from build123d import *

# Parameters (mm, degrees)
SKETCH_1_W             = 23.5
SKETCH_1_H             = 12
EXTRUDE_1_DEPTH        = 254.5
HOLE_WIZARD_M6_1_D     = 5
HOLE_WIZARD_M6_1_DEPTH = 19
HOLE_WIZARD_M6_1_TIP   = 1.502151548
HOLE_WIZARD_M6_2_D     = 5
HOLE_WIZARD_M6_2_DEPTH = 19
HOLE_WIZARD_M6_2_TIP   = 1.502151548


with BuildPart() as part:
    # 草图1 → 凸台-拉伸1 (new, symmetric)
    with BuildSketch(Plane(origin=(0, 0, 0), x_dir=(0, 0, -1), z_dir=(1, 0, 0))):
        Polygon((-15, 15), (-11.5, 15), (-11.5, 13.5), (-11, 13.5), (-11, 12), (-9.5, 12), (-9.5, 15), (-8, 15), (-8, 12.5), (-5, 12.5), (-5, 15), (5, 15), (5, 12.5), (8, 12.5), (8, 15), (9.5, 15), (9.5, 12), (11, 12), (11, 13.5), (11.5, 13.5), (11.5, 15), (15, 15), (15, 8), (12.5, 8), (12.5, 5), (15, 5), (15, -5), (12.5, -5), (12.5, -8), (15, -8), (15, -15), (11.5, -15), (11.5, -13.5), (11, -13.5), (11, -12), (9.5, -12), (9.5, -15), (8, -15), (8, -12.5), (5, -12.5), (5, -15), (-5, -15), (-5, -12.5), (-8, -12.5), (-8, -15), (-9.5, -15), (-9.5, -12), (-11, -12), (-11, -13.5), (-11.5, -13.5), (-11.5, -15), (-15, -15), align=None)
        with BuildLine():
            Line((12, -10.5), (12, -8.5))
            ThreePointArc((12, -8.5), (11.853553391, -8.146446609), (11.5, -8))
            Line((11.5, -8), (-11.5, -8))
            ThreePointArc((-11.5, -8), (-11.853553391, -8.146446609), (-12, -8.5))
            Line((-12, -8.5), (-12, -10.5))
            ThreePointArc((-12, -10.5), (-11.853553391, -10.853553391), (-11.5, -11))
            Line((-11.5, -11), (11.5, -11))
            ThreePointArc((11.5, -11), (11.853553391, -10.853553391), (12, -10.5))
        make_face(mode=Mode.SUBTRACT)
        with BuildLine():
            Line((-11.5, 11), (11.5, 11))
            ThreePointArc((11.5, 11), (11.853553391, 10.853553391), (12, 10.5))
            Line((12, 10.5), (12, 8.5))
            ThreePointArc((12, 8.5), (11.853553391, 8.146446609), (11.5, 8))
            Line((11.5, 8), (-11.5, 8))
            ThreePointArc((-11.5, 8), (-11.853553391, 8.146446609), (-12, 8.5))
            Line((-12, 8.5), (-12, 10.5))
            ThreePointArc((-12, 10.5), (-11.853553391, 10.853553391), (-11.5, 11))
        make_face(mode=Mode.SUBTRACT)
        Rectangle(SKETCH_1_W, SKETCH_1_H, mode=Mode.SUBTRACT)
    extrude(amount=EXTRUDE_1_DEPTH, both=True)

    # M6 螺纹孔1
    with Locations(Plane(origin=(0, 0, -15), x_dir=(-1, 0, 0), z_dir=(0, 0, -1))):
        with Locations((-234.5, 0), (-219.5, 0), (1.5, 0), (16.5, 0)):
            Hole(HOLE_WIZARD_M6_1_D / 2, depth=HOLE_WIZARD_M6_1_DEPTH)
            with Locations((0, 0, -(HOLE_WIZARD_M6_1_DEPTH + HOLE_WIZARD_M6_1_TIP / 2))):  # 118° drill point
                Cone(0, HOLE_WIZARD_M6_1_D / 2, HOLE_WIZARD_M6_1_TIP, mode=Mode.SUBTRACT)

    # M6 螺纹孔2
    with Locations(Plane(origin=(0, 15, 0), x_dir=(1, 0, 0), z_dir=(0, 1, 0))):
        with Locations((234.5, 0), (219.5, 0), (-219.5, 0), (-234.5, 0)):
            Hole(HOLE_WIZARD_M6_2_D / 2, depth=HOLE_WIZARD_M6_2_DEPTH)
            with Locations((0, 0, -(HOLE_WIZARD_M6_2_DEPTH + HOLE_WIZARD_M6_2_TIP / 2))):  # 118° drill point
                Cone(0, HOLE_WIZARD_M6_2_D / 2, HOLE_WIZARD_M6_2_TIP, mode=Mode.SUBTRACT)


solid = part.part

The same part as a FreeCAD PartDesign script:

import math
import FreeCAD as App
import Part
import Sketcher
from FreeCAD import Vector

doc = App.newDocument("Part")
body = doc.addObject("PartDesign::Body", "Body")

sketch1 = body.newObject("Sketcher::SketchObject", "Sketch")
sketch1.AttachmentSupport = (doc.getObject("YZ_Plane"), [""])
sketch1.MapMode = "FlatFace"
sketch1.addGeometry([
    Part.LineSegment(Vector(15, 11.5, 0), Vector(15, 15, 0)),
    Part.LineSegment(Vector(15, 15, 0), Vector(-15, 15, 0)),
    Part.LineSegment(Vector(-15, 15, 0), Vector(-15, 11.5, 0)),
    Part.LineSegment(Vector(-15, 11.5, 0), Vector(-13.5, 11.5, 0)),
    Part.LineSegment(Vector(-13.5, 11.5, 0), Vector(-13.5, 11, 0)),
    Part.LineSegment(Vector(-13.5, 11, 0), Vector(-12, 11, 0)),
    Part.LineSegment(Vector(-12, 11, 0), Vector(-12, 9.5, 0)),
    Part.LineSegment(Vector(-12, 9.5, 0), Vector(-15, 9.5, 0)),
    Part.LineSegment(Vector(-15, 9.5, 0), Vector(-15, 8, 0)),
    Part.LineSegment(Vector(-15, 8, 0), Vector(-12.5, 8, 0)),
    Part.LineSegment(Vector(-12.5, 8, 0), Vector(-12.5, 5, 0)),
    Part.LineSegment(Vector(-12.5, 5, 0), Vector(-15, 5, 0)),
    Part.LineSegment(Vector(-15, 5, 0), Vector(-15, -5, 0)),
    Part.LineSegment(Vector(-15, -5, 0), Vector(-12.5, -5, 0)),
    Part.LineSegment(Vector(-12.5, -5, 0), Vector(-12.5, -8, 0)),
    Part.LineSegment(Vector(-12.5, -8, 0), Vector(-15, -8, 0)),
    Part.LineSegment(Vector(-15, -8, 0), Vector(-15, -9.5, 0)),
    Part.LineSegment(Vector(-15, -9.5, 0), Vector(-12, -9.5, 0)),
    Part.LineSegment(Vector(-12, -9.5, 0), Vector(-12, -11, 0)),
    Part.LineSegment(Vector(-12, -11, 0), Vector(-13.5, -11, 0)),
    Part.LineSegment(Vector(-13.5, -11, 0), Vector(-13.5, -11.5, 0)),
    Part.LineSegment(Vector(-13.5, -11.5, 0), Vector(-15, -11.5, 0)),
    Part.LineSegment(Vector(-15, -11.5, 0), Vector(-15, -15, 0)),
    Part.LineSegment(Vector(-15, -15, 0), Vector(-8, -15, 0)),
    Part.LineSegment(Vector(-8, -15, 0), Vector(-8, -12.5, 0)),
    Part.LineSegment(Vector(-8, -12.5, 0), Vector(-5, -12.5, 0)),
    Part.LineSegment(Vector(-5, -12.5, 0), Vector(-5, -15, 0)),
    Part.LineSegment(Vector(-5, -15, 0), Vector(5, -15, 0)),
    Part.LineSegment(Vector(5, -15, 0), Vector(5, -12.5, 0)),
    Part.LineSegment(Vector(5, -12.5, 0), Vector(8, -12.5, 0)),
    Part.LineSegment(Vector(8, -12.5, 0), Vector(8, -15, 0)),
    Part.LineSegment(Vector(8, -15, 0), Vector(15, -15, 0)),
    Part.LineSegment(Vector(15, -15, 0), Vector(15, -11.5, 0)),
    Part.LineSegment(Vector(15, -11.5, 0), Vector(13.5, -11.5, 0)),
    Part.LineSegment(Vector(13.5, -11.5, 0), Vector(13.5, -11, 0)),
    Part.LineSegment(Vector(13.5, -11, 0), Vector(12, -11, 0)),
    Part.LineSegment(Vector(12, -11, 0), Vector(12, -9.5, 0)),
    Part.LineSegment(Vector(12, -9.5, 0), Vector(15, -9.5, 0)),
    Part.LineSegment(Vector(15, -9.5, 0), Vector(15, -8, 0)),
    Part.LineSegment(Vector(15, -8, 0), Vector(12.5, -8, 0)),
    Part.LineSegment(Vector(12.5, -8, 0), Vector(12.5, -5, 0)),
    Part.LineSegment(Vector(12.5, -5, 0), Vector(15, -5, 0)),
    Part.LineSegment(Vector(15, -5, 0), Vector(15, 5, 0)),
    Part.LineSegment(Vector(15, 5, 0), Vector(12.5, 5, 0)),
    Part.LineSegment(Vector(12.5, 5, 0), Vector(12.5, 8, 0)),
    Part.LineSegment(Vector(12.5, 8, 0), Vector(15, 8, 0)),
    Part.LineSegment(Vector(15, 8, 0), Vector(15, 9.5, 0)),
    Part.LineSegment(Vector(15, 9.5, 0), Vector(12, 9.5, 0)),
    Part.LineSegment(Vector(12, 9.5, 0), Vector(12, 11, 0)),
    Part.LineSegment(Vector(12, 11, 0), Vector(13.5, 11, 0)),
    Part.LineSegment(Vector(13.5, 11, 0), Vector(13.5, 11.5, 0)),
    Part.LineSegment(Vector(13.5, 11.5, 0), Vector(15, 11.5, 0)),
    Part.ArcOfCircle(Part.Circle(Vector(-10.5, -11.5, 0), Vector(0, 0, 1), 0.5), math.radians(180), math.radians(270)),
    Part.LineSegment(Vector(-11, -11.5, 0), Vector(-11, 11.5, 0)),
    Part.ArcOfCircle(Part.Circle(Vector(-10.5, 11.5, 0), Vector(0, 0, 1), 0.5), math.radians(90), math.radians(180)),
    Part.LineSegment(Vector(-10.5, 12, 0), Vector(-8.5, 12, 0)),
    Part.ArcOfCircle(Part.Circle(Vector(-8.5, 11.5, 0), Vector(0, 0, 1), 0.5), math.radians(0), math.radians(90)),
    Part.LineSegment(Vector(-8, 11.5, 0), Vector(-8, -11.5, 0)),
    Part.ArcOfCircle(Part.Circle(Vector(-8.5, -11.5, 0), Vector(0, 0, 1), 0.5), math.radians(-90), math.radians(0)),
    Part.LineSegment(Vector(-8.5, -12, 0), Vector(-10.5, -12, 0)),
    Part.LineSegment(Vector(-6, 11.75, 0), Vector(6, 11.75, 0)),
    Part.LineSegment(Vector(6, 11.75, 0), Vector(6, -11.75, 0)),
    Part.LineSegment(Vector(6, -11.75, 0), Vector(-6, -11.75, 0)),
    Part.LineSegment(Vector(-6, -11.75, 0), Vector(-6, 11.75, 0)),
    Part.LineSegment(Vector(11, 11.5, 0), Vector(11, -11.5, 0)),
    Part.ArcOfCircle(Part.Circle(Vector(10.5, -11.5, 0), Vector(0, 0, 1), 0.5), math.radians(-90), math.radians(0)),
    Part.LineSegment(Vector(10.5, -12, 0), Vector(8.5, -12, 0)),
    Part.ArcOfCircle(Part.Circle(Vector(8.5, -11.5, 0), Vector(0, 0, 1), 0.5), math.radians(180), math.radians(270)),
    Part.LineSegment(Vector(8, -11.5, 0), Vector(8, 11.5, 0)),
    Part.ArcOfCircle(Part.Circle(Vector(8.5, 11.5, 0), Vector(0, 0, 1), 0.5), math.radians(90), math.radians(180)),
    Part.LineSegment(Vector(8.5, 12, 0), Vector(10.5, 12, 0)),
    Part.ArcOfCircle(Part.Circle(Vector(10.5, 11.5, 0), Vector(0, 0, 1), 0.5), math.radians(0), math.radians(90)),
], False)
sketch1.addConstraint([
    Sketcher.Constraint("Coincident", 0, 2, 1, 1),
    Sketcher.Constraint("Coincident", 1, 2, 2, 1),
    Sketcher.Constraint("Coincident", 2, 2, 3, 1),
    Sketcher.Constraint("Coincident", 3, 2, 4, 1),
    Sketcher.Constraint("Coincident", 4, 2, 5, 1),
    Sketcher.Constraint("Coincident", 5, 2, 6, 1),
    Sketcher.Constraint("Coincident", 6, 2, 7, 1),
    Sketcher.Constraint("Coincident", 7, 2, 8, 1),
    Sketcher.Constraint("Coincident", 8, 2, 9, 1),
    Sketcher.Constraint("Coincident", 9, 2, 10, 1),
    Sketcher.Constraint("Coincident", 10, 2, 11, 1),
    Sketcher.Constraint("Coincident", 11, 2, 12, 1),
    Sketcher.Constraint("Coincident", 12, 2, 13, 1),
    Sketcher.Constraint("Coincident", 13, 2, 14, 1),
    Sketcher.Constraint("Coincident", 14, 2, 15, 1),
    Sketcher.Constraint("Coincident", 15, 2, 16, 1),
    Sketcher.Constraint("Coincident", 16, 2, 17, 1),
    Sketcher.Constraint("Coincident", 17, 2, 18, 1),
    Sketcher.Constraint("Coincident", 18, 2, 19, 1),
    Sketcher.Constraint("Coincident", 19, 2, 20, 1),
    Sketcher.Constraint("Coincident", 20, 2, 21, 1),
    Sketcher.Constraint("Coincident", 21, 2, 22, 1),
    Sketcher.Constraint("Coincident", 22, 2, 23, 1),
    Sketcher.Constraint("Coincident", 23, 2, 24, 1),
    Sketcher.Constraint("Coincident", 24, 2, 25, 1),
    Sketcher.Constraint("Coincident", 25, 2, 26, 1),
    Sketcher.Constraint("Coincident", 26, 2, 27, 1),
    Sketcher.Constraint("Coincident", 27, 2, 28, 1),
    Sketcher.Constraint("Coincident", 28, 2, 29, 1),
    Sketcher.Constraint("Coincident", 29, 2, 30, 1),
    Sketcher.Constraint("Coincident", 30, 2, 31, 1),
    Sketcher.Constraint("Coincident", 31, 2, 32, 1),
    Sketcher.Constraint("Coincident", 32, 2, 33, 1),
    Sketcher.Constraint("Coincident", 33, 2, 34, 1),
    Sketcher.Constraint("Coincident", 34, 2, 35, 1),
    Sketcher.Constraint("Coincident", 35, 2, 36, 1),
    Sketcher.Constraint("Coincident", 36, 2, 37, 1),
    Sketcher.Constraint("Coincident", 37, 2, 38, 1),
    Sketcher.Constraint("Coincident", 38, 2, 39, 1),
    Sketcher.Constraint("Coincident", 39, 2, 40, 1),
    Sketcher.Constraint("Coincident", 40, 2, 41, 1),
    Sketcher.Constraint("Coincident", 41, 2, 42, 1),
    Sketcher.Constraint("Coincident", 42, 2, 43, 1),
    Sketcher.Constraint("Coincident", 43, 2, 44, 1),
    Sketcher.Constraint("Coincident", 44, 2, 45, 1),
    Sketcher.Constraint("Coincident", 45, 2, 46, 1),
    Sketcher.Constraint("Coincident", 46, 2, 47, 1),
    Sketcher.Constraint("Coincident", 47, 2, 48, 1),
    Sketcher.Constraint("Coincident", 48, 2, 49, 1),
    Sketcher.Constraint("Coincident", 49, 2, 50, 1),
    Sketcher.Constraint("Coincident", 50, 2, 51, 1),
    Sketcher.Constraint("Coincident", 51, 2, 0, 1),
    Sketcher.Constraint("Tangent", 52, 1, 53, 1),
    Sketcher.Constraint("Tangent", 53, 2, 54, 2),
    Sketcher.Constraint("Tangent", 54, 1, 55, 1),
    Sketcher.Constraint("Tangent", 55, 2, 56, 2),
    Sketcher.Constraint("Tangent", 56, 1, 57, 1),
    Sketcher.Constraint("Tangent", 57, 2, 58, 2),
    Sketcher.Constraint("Tangent", 58, 1, 59, 1),
    Sketcher.Constraint("Tangent", 59, 2, 52, 2),
    Sketcher.Constraint("Coincident", 60, 2, 61, 1),
    Sketcher.Constraint("Coincident", 61, 2, 62, 1),
    Sketcher.Constraint("Coincident", 62, 2, 63, 1),
    Sketcher.Constraint("Coincident", 63, 2, 60, 1),
    Sketcher.Constraint("Tangent", 64, 2, 65, 2),
    Sketcher.Constraint("Tangent", 65, 1, 66, 1),
    Sketcher.Constraint("Tangent", 66, 2, 67, 2),
    Sketcher.Constraint("Tangent", 67, 1, 68, 1),
    Sketcher.Constraint("Tangent", 68, 2, 69, 2),
    Sketcher.Constraint("Tangent", 69, 1, 70, 1),
    Sketcher.Constraint("Tangent", 70, 2, 71, 2),
    Sketcher.Constraint("Tangent", 71, 1, 64, 1),
    Sketcher.Constraint("Vertical", 0),
    Sketcher.Constraint("Horizontal", 1),
    Sketcher.Constraint("Vertical", 2),
    Sketcher.Constraint("Horizontal", 3),
    Sketcher.Constraint("Vertical", 4),
    Sketcher.Constraint("Horizontal", 5),
    Sketcher.Constraint("Vertical", 6),
    Sketcher.Constraint("Horizontal", 7),
    Sketcher.Constraint("Vertical", 8),
    Sketcher.Constraint("Horizontal", 9),
    Sketcher.Constraint("Vertical", 10),
    Sketcher.Constraint("Horizontal", 11),
    Sketcher.Constraint("Vertical", 12),
    Sketcher.Constraint("Horizontal", 13),
    Sketcher.Constraint("Vertical", 14),
    Sketcher.Constraint("Horizontal", 15),
    Sketcher.Constraint("Vertical", 16),
    Sketcher.Constraint("Horizontal", 17),
    Sketcher.Constraint("Vertical", 18),
    Sketcher.Constraint("Horizontal", 19),
    Sketcher.Constraint("Vertical", 20),
    Sketcher.Constraint("Horizontal", 21),
    Sketcher.Constraint("Vertical", 22),
    Sketcher.Constraint("Horizontal", 23),
    Sketcher.Constraint("Vertical", 24),
    Sketcher.Constraint("Horizontal", 25),
    Sketcher.Constraint("Vertical", 26),
    Sketcher.Constraint("Horizontal", 27),
    Sketcher.Constraint("Vertical", 28),
    Sketcher.Constraint("Horizontal", 29),
    Sketcher.Constraint("Vertical", 30),
    Sketcher.Constraint("Horizontal", 31),
    Sketcher.Constraint("Vertical", 32),
    Sketcher.Constraint("Horizontal", 33),
    Sketcher.Constraint("Vertical", 34),
    Sketcher.Constraint("Horizontal", 35),
    Sketcher.Constraint("Vertical", 36),
    Sketcher.Constraint("Horizontal", 37),
    Sketcher.Constraint("Vertical", 38),
    Sketcher.Constraint("Horizontal", 39),
    Sketcher.Constraint("Vertical", 40),
    Sketcher.Constraint("Horizontal", 41),
    Sketcher.Constraint("Vertical", 42),
    Sketcher.Constraint("Horizontal", 43),
    Sketcher.Constraint("Vertical", 44),
    Sketcher.Constraint("Horizontal", 45),
    Sketcher.Constraint("Vertical", 46),
    Sketcher.Constraint("Horizontal", 47),
    Sketcher.Constraint("Vertical", 48),
    Sketcher.Constraint("Horizontal", 49),
    Sketcher.Constraint("Vertical", 50),
    Sketcher.Constraint("Horizontal", 51),
    Sketcher.Constraint("Vertical", 53),
    Sketcher.Constraint("Horizontal", 55),
    Sketcher.Constraint("Vertical", 57),
    Sketcher.Constraint("Horizontal", 59),
    Sketcher.Constraint("Horizontal", 60),
    Sketcher.Constraint("Vertical", 61),
    Sketcher.Constraint("Horizontal", 62),
    Sketcher.Constraint("Vertical", 63),
    Sketcher.Constraint("Vertical", 64),
    Sketcher.Constraint("Horizontal", 66),
    Sketcher.Constraint("Vertical", 68),
    Sketcher.Constraint("Horizontal", 70),
    Sketcher.Constraint("Equal", 52, 54),
    Sketcher.Constraint("Equal", 54, 56),
    Sketcher.Constraint("Equal", 56, 58),
    Sketcher.Constraint("Equal", 58, 65),
    Sketcher.Constraint("Equal", 65, 67),
    Sketcher.Constraint("Equal", 67, 69),
    Sketcher.Constraint("Equal", 69, 71),
    Sketcher.Constraint("Symmetric", 54, 3, 65, 3, -1, 1),
    Sketcher.Constraint("Symmetric", 58, 3, 69, 3, -1, 1),
    Sketcher.Constraint("Symmetric", 0, 2, 22, 2, -1, 1),
    Sketcher.Constraint("Symmetric", 1, 2, 31, 2, -1, 1),
    Sketcher.Constraint("Symmetric", 3, 2, 33, 2, -1, 1),
    Sketcher.Constraint("Symmetric", 5, 2, 35, 2, -1, 1),
    Sketcher.Constraint("Symmetric", 7, 2, 37, 2, -1, 1),
    Sketcher.Constraint("Symmetric", 9, 2, 39, 2, -1, 1),
    Sketcher.Constraint("Symmetric", 11, 2, 41, 2, -1, 1),
    Sketcher.Constraint("Symmetric", 13, 2, 43, 2, -1, 1),
    Sketcher.Constraint("Symmetric", 15, 2, 45, 2, -1, 1),
    Sketcher.Constraint("Symmetric", 17, 2, 47, 2, -1, 1),
    Sketcher.Constraint("Symmetric", 19, 2, 49, 2, -1, 1),
    Sketcher.Constraint("Symmetric", 60, 2, 62, 2, -1, 1),
    Sketcher.Constraint("Symmetric", 25, 2, 28, 2, -2),
    Sketcher.Constraint("Symmetric", 21, 2, 32, 2, -2),
    Sketcher.Constraint("Symmetric", 19, 2, 34, 2, -2),
    Sketcher.Constraint("Symmetric", 17, 2, 36, 2, -2),
    Sketcher.Constraint("Symmetric", 15, 2, 38, 2, -2),
    Sketcher.Constraint("Symmetric", 13, 2, 40, 2, -2),
    Sketcher.Constraint("Horizontal", 58, 3, 65, 3),
    Sketcher.Constraint("Horizontal", 71, 3, 2, 2),
    Sketcher.Constraint("Horizontal", 23, 2, 26, 2),
    Sketcher.Constraint("Horizontal", 3, 2, 50, 2),
    Sketcher.Constraint("Vertical", 2, 2, 7, 2),
    Sketcher.Constraint("Vertical", 8, 2, 11, 2),
    Sketcher.Constraint("Vertical", 24, 2, 56, 1),
    Sketcher.Constraint("Vertical", 30, 2, 67, 1),
    Sketcher.Constraint("Equal", 3, 5),
    Sketcher.Constraint("Equal", 17, 25),
    Sketcher.Constraint("Equal", 51, 6),
    Sketcher.Constraint("Equal", 6, 8),
    Sketcher.Constraint("Equal", 47, 10),
    Sketcher.Constraint("Equal", 27, 12),
    Sketcher.Constraint("Equal", 45, 24),
    Sketcher.Constraint("Radius", 52, 0.5),
    Sketcher.Constraint("DistanceX", 1, 2, 1, 1, 30.0),
    Sketcher.Constraint("DistanceX", 7, 2, 7, 1, 3.0),
    Sketcher.Constraint("DistanceX", 23, 1, 23, 2, 7.0),
    Sketcher.Constraint("DistanceX", 55, 1, 55, 2, 2.0),
    Sketcher.Constraint("DistanceX", 60, 1, 60, 2, 12.0),
    Sketcher.Constraint("DistanceY", 53, 1, 53, 2, 23.0),
    Sketcher.Constraint("DistanceX", 9, 1, 9, 2, 2.5),
    Sketcher.Constraint("DistanceY", 0, 1, 0, 2, 3.5),
    Sketcher.Constraint("DistanceY", 61, 2, 61, 1, 23.5),
])
pad1 = body.newObject("PartDesign::Pad", "Pad")
pad1.Profile = sketch1
pad1.Length = 509
pad1.Midplane = True

sketch2 = body.newObject("Sketcher::SketchObject", "Sketch001")
sketch2.AttachmentSupport = (doc.getObject("XY_Plane"), [""])
sketch2.MapMode = "FlatFace"
sketch2.AttachmentOffset = App.Placement(Vector(0, 0, -15), App.Rotation())
sketch2.addGeometry([
    Part.Circle(Vector(234.5, 0, 0), Vector(0, 0, 1), 2.5),
    Part.Circle(Vector(219.5, 0, 0), Vector(0, 0, 1), 2.5),
    Part.Circle(Vector(-1.5, 0, 0), Vector(0, 0, 1), 2.5),
    Part.Circle(Vector(-16.5, 0, 0), Vector(0, 0, 1), 2.5),
], False)
sketch2.addConstraint([
    Sketcher.Constraint("Equal", 0, 1),
    Sketcher.Constraint("Equal", 1, 2),
    Sketcher.Constraint("Equal", 2, 3),
    Sketcher.Constraint("PointOnObject", 0, 3, -1),
    Sketcher.Constraint("PointOnObject", 1, 3, -1),
    Sketcher.Constraint("PointOnObject", 2, 3, -1),
    Sketcher.Constraint("PointOnObject", 3, 3, -1),
    Sketcher.Constraint("Diameter", 0, 5.0),
    Sketcher.Constraint("DistanceX", 1, 3, 0, 3, 15.0),
    Sketcher.Constraint("DistanceX", 2, 3, 1, 3, 221.0),
    Sketcher.Constraint("DistanceX", 3, 3, 2, 3, 15.0),
    Sketcher.Constraint("DistanceX", -1, 1, 0, 3, 234.5),
])
doc.recompute()
hole = body.newObject("PartDesign::Hole", "Hole")
hole.Profile = sketch2
hole.ThreadType = "None"
hole.Diameter = 5
hole.DepthType = "Dimension"
hole.Depth = 19
hole.DrillPoint = "Angled"
hole.DrillPointAngle = 118
hole.Reversed = True

sketch3 = body.newObject("Sketcher::SketchObject", "Sketch002")
sketch3.AttachmentSupport = (doc.getObject("XZ_Plane"), [""])
sketch3.MapMode = "FlatFace"
sketch3.AttachmentOffset = App.Placement(Vector(0, 0, -15), App.Rotation())
sketch3.addGeometry([
    Part.Circle(Vector(234.5, 0, 0), Vector(0, 0, 1), 2.5),
    Part.Circle(Vector(219.5, 0, 0), Vector(0, 0, 1), 2.5),
    Part.Circle(Vector(-219.5, 0, 0), Vector(0, 0, 1), 2.5),
    Part.Circle(Vector(-234.5, 0, 0), Vector(0, 0, 1), 2.5),
], False)
sketch3.addConstraint([
    Sketcher.Constraint("Equal", 0, 1),
    Sketcher.Constraint("Equal", 1, 2),
    Sketcher.Constraint("Equal", 2, 3),
    Sketcher.Constraint("Symmetric", 1, 3, 2, 3, -1, 1),
    Sketcher.Constraint("Symmetric", 0, 3, 3, 3, -1, 1),
    Sketcher.Constraint("PointOnObject", 0, 3, -1),
    Sketcher.Constraint("PointOnObject", 1, 3, -1),
    Sketcher.Constraint("Diameter", 0, 5.0),
    Sketcher.Constraint("DistanceX", 1, 3, 0, 3, 15.0),
    Sketcher.Constraint("DistanceX", 2, 3, 1, 3, 439.0),
])
doc.recompute()
hole2 = body.newObject("PartDesign::Hole", "Hole001")
hole2.Profile = sketch3
hole2.ThreadType = "None"
hole2.Diameter = 5
hole2.DepthType = "Dimension"
hole2.Depth = 19
hole2.DrillPoint = "Angled"
hole2.DrillPointAngle = 118
hole2.Reversed = True

doc.recompute()
